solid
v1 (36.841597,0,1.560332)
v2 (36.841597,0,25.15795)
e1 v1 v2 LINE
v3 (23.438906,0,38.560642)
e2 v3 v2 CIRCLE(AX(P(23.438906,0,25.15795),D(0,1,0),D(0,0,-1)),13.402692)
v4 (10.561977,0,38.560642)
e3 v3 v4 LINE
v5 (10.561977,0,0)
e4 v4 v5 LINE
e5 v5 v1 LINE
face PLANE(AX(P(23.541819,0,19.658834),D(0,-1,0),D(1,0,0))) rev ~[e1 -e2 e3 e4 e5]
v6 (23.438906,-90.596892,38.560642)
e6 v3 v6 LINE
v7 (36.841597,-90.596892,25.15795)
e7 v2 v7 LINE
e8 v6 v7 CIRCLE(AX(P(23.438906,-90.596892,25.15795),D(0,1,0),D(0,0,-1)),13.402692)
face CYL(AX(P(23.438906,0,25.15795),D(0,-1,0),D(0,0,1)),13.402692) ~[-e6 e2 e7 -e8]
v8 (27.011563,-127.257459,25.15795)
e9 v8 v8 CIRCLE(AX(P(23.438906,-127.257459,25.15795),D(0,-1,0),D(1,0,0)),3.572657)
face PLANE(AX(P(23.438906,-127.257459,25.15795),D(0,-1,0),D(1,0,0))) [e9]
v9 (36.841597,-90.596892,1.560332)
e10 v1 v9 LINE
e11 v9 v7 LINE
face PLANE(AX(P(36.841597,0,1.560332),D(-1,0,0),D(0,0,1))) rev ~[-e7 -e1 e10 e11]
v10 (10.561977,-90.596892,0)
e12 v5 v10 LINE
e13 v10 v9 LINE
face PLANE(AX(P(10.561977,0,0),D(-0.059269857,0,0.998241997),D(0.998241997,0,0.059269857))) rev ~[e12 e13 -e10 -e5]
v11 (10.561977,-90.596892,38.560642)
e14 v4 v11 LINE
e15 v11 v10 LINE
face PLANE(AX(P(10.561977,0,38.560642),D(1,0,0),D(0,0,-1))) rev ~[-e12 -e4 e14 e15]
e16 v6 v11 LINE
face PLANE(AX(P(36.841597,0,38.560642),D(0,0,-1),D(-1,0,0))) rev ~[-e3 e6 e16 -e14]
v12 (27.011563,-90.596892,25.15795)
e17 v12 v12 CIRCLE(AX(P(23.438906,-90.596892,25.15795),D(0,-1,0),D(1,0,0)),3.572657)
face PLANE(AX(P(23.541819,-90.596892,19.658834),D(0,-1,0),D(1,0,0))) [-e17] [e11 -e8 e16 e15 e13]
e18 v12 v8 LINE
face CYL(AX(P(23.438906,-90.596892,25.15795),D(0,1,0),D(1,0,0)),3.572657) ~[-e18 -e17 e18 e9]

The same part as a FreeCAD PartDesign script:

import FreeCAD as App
import Part
import Sketcher

V = App.Vector
Q = App.Units.Quantity


def edges_at(feature, points):
    """Names of the edges that pass closest to the given points."""
    edges = feature.Shape.Edges
    near = lambda p: min(range(len(edges)), key=lambda i: edges[i].distToShape(Part.Vertex(*p))[0])
    return sorted({f"Edge{near(p) + 1}" for p in points})


def add_polygon(sketch, points):
    """Adds a closed chain of lines whose ends are joined by coincident constraints."""
    first, n = sketch.GeometryCount, len(points)
    for a, b in zip(points, points[1:] + points[:1]):
        sketch.addGeometry(Part.LineSegment(App.Vector(*a, 0), App.Vector(*b, 0)), False)
    for i in range(n):
        sketch.addConstraint(Sketcher.Constraint("Coincident", first + i, 2, first + (i + 1) % n, 1))

doc = App.newDocument("Part")
body = doc.addObject("PartDesign::Body", "Body")

sketch1 = body.newObject("Sketcher::SketchObject", "Sketch")
sketch1.AttachmentSupport = (doc.getObject("XZ_Plane"), [""])
sketch1.MapMode = "FlatFace"
add_polygon(sketch1, [(37, 39), (11, 39), (11, 0), (37, 2)])
sketch1.addConstraint(Sketcher.Constraint("Horizontal", 0))
sketch1.addConstraint(Sketcher.Constraint("Vertical", 1))
sketch1.addConstraint(Sketcher.Constraint("Vertical", 3))
sketch1.addConstraint(Sketcher.Constraint("PointOnObject", 1, 2, -1))
sketch1.addConstraint(Sketcher.Constraint("Distance", 2, Q("26.325902 mm")))
sketch1.addConstraint(Sketcher.Constraint("DistanceX", 0, 2, 0, 1, Q("26.279621 mm")))
sketch1.addConstraint(Sketcher.Constraint("DistanceY", 3, 1, 3, 2, Q("37.00031 mm")))
sketch1.addConstraint(Sketcher.Constraint("DistanceX", -1, 1, 0, 2, Q("10.561977 mm")))
pad1 = body.newObject("PartDesign::Pad", "Pad")
pad1.Profile = sketch1
pad1.Length = 90.596892
doc.recompute()

fillet = body.newObject("PartDesign::Fillet", "Fillet")
fillet.Base = (pad1, edges_at(pad1, [(36.842, -45.298, 38.561)]))
fillet.Radius = 13.402692

sketch2 = body.newObject("Sketcher::SketchObject", "Sketch001")
sketch2.AttachmentSupport = (doc.getObject("XZ_Plane"), [""])
sketch2.MapMode = "FlatFace"
sketch2.AttachmentOffset = App.Placement(V(0, 0, 90.596892), App.Rotation())
sketch2.addGeometry(Part.Circle(V(23.4, 25.2, 0), V(0, 0, 1), 3.6), False)
sketch2.addConstraint(Sketcher.Constraint("Diameter", 0, Q("7.145314 mm")))
sketch2.addConstraint(Sketcher.Constraint("DistanceY", -1, 1, 0, 3, Q("25.15795 mm")))
sketch2.addConstraint(Sketcher.Constraint("DistanceX", -1, 1, 0, 3, Q("23.438906 mm")))
pad2 = body.newObject("PartDesign::Pad", "Pad001")
pad2.Profile = sketch2
pad2.Length = 36.660567

doc.recompute()
